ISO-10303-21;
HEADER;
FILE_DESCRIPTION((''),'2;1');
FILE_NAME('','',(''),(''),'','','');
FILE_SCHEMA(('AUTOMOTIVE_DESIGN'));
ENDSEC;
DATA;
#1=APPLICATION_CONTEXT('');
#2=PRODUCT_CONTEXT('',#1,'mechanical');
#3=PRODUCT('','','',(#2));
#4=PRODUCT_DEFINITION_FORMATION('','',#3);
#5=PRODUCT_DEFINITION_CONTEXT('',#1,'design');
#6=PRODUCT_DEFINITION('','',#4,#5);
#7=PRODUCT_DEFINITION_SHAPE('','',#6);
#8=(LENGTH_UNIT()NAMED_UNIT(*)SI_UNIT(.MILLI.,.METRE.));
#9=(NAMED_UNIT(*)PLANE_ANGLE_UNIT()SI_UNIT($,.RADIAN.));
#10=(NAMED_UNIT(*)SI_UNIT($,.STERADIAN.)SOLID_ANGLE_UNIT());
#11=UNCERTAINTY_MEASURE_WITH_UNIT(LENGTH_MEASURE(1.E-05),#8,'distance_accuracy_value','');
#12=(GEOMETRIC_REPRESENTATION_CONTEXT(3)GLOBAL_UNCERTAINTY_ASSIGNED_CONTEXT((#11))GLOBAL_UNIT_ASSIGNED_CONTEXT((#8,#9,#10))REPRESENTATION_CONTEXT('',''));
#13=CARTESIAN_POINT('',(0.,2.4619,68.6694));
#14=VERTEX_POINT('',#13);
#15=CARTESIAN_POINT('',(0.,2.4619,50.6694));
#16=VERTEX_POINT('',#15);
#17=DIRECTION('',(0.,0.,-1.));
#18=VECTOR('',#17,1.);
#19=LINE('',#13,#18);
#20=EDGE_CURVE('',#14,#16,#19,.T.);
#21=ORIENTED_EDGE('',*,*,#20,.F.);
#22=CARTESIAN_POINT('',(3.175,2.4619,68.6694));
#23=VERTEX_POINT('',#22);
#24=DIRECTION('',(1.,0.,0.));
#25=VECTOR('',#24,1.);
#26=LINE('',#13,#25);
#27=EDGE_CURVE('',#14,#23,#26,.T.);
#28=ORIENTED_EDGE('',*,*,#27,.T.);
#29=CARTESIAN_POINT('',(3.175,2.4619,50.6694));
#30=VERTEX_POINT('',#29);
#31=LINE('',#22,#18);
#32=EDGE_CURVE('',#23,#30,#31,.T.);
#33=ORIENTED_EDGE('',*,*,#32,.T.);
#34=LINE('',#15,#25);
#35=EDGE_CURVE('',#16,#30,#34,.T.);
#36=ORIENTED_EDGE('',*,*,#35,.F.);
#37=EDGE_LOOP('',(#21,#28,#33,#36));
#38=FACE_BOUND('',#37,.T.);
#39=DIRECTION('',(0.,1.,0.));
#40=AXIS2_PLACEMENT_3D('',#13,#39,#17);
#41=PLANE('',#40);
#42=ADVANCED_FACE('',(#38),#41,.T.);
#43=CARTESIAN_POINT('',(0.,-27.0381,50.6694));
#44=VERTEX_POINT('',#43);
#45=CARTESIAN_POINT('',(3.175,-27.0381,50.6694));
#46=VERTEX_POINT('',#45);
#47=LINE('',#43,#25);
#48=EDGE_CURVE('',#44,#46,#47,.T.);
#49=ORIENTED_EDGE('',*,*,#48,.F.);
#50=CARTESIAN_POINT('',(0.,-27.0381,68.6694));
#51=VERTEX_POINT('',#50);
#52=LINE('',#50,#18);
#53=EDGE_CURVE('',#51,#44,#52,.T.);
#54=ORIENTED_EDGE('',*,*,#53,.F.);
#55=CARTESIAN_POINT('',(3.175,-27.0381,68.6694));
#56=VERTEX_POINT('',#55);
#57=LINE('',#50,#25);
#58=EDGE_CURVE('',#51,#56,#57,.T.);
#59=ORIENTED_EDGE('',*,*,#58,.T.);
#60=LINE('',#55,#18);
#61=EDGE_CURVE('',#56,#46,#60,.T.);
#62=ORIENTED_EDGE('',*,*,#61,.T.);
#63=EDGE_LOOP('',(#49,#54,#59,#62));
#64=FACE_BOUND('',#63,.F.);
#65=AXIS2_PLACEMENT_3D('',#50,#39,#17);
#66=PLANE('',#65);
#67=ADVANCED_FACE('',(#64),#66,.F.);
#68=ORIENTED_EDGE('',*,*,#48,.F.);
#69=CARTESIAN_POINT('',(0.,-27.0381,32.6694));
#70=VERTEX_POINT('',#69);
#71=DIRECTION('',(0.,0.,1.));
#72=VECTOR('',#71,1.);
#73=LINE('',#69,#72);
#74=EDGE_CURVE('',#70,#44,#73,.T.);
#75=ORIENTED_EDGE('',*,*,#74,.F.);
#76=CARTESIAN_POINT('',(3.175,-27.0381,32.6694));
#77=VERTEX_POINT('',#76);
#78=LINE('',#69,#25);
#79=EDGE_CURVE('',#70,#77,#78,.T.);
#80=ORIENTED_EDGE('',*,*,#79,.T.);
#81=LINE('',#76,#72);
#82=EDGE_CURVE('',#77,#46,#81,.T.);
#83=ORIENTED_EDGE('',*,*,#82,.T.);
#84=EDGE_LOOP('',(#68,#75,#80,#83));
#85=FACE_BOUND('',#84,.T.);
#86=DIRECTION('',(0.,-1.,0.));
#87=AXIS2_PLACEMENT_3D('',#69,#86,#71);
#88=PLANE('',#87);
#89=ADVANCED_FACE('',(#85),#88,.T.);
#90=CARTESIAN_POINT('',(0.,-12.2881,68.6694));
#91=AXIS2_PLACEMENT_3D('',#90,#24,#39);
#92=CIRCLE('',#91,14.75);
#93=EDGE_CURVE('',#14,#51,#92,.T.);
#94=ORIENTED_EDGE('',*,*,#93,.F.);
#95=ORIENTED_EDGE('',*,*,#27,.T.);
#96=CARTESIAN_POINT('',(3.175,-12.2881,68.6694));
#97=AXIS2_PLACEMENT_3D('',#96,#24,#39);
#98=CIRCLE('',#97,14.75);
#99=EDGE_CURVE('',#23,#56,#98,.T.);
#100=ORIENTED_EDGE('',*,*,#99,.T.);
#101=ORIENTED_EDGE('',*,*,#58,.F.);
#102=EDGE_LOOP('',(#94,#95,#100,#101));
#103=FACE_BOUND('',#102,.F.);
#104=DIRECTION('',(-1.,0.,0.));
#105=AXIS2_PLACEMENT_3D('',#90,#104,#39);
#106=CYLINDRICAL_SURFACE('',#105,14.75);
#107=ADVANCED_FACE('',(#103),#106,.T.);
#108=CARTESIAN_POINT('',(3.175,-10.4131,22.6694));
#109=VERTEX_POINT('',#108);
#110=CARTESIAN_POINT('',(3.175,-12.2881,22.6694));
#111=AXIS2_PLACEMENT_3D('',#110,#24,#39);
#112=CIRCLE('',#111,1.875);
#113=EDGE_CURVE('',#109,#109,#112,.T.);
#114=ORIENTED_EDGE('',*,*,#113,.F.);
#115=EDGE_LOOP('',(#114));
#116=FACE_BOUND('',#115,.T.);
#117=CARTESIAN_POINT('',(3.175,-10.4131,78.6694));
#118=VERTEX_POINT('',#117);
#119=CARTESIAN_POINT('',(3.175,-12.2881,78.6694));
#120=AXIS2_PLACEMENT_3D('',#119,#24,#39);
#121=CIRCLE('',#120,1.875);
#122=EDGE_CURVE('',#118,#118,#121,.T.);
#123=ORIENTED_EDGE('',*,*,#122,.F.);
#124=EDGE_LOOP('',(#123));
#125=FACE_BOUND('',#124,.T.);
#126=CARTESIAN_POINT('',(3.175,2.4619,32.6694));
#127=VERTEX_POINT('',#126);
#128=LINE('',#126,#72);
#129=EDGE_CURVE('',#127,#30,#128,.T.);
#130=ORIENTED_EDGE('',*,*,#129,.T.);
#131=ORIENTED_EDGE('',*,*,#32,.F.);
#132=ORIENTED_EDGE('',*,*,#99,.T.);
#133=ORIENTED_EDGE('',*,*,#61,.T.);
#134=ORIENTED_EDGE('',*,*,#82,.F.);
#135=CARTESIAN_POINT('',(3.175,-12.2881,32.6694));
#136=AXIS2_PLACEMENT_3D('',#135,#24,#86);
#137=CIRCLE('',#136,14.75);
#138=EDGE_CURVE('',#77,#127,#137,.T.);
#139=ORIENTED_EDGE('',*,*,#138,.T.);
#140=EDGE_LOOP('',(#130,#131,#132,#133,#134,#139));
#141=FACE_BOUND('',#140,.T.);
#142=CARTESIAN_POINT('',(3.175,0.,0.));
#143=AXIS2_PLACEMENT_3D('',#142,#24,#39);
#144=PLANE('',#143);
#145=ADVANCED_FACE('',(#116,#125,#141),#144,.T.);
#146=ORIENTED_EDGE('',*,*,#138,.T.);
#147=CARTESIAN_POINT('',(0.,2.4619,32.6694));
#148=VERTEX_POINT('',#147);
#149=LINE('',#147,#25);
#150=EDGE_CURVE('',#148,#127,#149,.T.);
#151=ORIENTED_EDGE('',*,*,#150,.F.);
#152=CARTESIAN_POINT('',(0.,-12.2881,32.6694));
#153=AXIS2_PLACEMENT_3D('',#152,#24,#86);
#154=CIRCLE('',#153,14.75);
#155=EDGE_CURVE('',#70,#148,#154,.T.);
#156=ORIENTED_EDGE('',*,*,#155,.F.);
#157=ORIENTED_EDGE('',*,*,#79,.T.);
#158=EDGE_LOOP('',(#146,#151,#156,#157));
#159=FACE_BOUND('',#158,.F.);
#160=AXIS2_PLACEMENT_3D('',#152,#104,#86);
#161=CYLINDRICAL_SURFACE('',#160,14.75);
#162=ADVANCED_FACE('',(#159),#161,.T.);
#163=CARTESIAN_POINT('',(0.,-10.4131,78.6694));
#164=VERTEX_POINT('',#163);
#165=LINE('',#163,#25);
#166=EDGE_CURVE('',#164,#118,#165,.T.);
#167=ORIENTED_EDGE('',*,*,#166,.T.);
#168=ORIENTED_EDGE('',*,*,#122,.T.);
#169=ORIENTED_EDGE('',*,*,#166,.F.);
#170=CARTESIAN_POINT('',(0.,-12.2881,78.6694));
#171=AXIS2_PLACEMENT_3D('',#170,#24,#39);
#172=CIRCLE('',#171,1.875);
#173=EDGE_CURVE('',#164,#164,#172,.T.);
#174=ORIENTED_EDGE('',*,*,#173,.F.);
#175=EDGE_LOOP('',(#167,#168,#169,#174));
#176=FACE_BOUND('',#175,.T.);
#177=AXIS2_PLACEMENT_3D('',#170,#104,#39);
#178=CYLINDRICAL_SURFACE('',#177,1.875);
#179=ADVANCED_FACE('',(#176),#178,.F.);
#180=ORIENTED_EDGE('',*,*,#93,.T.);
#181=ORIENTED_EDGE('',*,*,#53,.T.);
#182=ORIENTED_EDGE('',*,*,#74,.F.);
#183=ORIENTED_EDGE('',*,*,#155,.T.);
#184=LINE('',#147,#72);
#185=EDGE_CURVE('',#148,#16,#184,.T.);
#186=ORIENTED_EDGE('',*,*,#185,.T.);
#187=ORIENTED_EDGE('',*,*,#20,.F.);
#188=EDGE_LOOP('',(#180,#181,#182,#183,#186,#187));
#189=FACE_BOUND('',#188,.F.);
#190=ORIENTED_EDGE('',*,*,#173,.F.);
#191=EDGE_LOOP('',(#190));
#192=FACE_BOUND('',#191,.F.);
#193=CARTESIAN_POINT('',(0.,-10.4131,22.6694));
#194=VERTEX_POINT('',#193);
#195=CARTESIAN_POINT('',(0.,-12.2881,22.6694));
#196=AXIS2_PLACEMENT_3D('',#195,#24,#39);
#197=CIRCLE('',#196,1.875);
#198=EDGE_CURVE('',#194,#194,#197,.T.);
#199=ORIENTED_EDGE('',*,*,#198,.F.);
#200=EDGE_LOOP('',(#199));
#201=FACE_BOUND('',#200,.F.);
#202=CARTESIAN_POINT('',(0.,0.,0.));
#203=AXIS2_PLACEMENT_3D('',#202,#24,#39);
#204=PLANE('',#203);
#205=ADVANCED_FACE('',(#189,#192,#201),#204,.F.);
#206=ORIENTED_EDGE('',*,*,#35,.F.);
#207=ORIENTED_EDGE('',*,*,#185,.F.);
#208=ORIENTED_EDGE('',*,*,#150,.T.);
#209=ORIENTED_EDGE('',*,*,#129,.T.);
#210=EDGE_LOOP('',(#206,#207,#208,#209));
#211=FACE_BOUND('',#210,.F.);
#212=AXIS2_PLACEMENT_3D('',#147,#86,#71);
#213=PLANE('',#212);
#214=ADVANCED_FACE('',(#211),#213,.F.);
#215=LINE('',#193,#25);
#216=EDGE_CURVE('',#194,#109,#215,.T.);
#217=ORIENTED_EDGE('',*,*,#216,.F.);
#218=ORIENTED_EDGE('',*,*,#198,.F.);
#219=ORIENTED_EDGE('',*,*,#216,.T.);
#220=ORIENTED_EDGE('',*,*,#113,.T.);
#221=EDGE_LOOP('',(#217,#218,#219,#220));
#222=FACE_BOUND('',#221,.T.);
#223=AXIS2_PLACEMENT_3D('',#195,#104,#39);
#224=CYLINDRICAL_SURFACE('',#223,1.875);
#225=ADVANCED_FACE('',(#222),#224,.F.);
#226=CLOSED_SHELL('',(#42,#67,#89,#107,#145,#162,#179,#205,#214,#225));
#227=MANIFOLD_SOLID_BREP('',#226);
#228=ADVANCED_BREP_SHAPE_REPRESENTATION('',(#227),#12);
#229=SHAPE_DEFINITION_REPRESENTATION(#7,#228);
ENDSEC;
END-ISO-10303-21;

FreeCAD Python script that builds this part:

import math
import FreeCAD as App
import Part
import Sketcher

V = App.Vector
Q = App.Units.Quantity

doc = App.newDocument("Part")
body = doc.addObject("PartDesign::Body", "Body")

# Sketch on YZ plane
sketch1 = body.newObject("Sketcher::SketchObject", "Sketch")
sketch1.AttachmentSupport = (doc.getObject("YZ_Plane"), [""])
sketch1.MapMode = "FlatFace"
sketch1.addGeometry(Part.LineSegment(V(-27.0381, 68.6694, 0), V(-27.0381, 32.6694, 0)), False)
sketch1.addGeometry(Part.ArcOfCircle(Part.Circle(V(-12.2881, 32.6694, 0), V(0, 0, 1), 14.75), math.radians(180), math.radians(360)), False)
sketch1.addGeometry(Part.LineSegment(V(2.4619, 32.6694, 0), V(2.4619, 68.6694, 0)), False)
sketch1.addGeometry(Part.ArcOfCircle(Part.Circle(V(-12.2881, 68.6694, 0), V(0, 0, 1), 14.75), math.radians(0), math.radians(180)), False)
sketch1.addGeometry(Part.Circle(V(-12.2881, 22.6694, 0), V(0, 0, 1), 1.875), False)
sketch1.addGeometry(Part.Circle(V(-12.2881, 78.6694, 0), V(0, 0, 1), 1.875), False)
sketch1.addConstraint(Sketcher.Constraint("Tangent", 0, 2, 1, 1))
sketch1.addConstraint(Sketcher.Constraint("Tangent", 1, 2, 2, 1))
sketch1.addConstraint(Sketcher.Constraint("Tangent", 2, 2, 3, 1))
sketch1.addConstraint(Sketcher.Constraint("Tangent", 3, 2, 0, 1))
sketch1.addConstraint(Sketcher.Constraint("Vertical", 0))
sketch1.addConstraint(Sketcher.Constraint("Vertical", 2))
sketch1.addConstraint(Sketcher.Constraint("Equal", 4, 5))
sketch1.addConstraint(Sketcher.Constraint("Vertical", 3, 3, 4, 3))
sketch1.addConstraint(Sketcher.Constraint("Vertical", 4, 3, 5, 3))
sketch1.addConstraint(Sketcher.Constraint("Diameter", 4, Q("3.75 mm")))
sketch1.addConstraint(Sketcher.Constraint("Radius", 1, Q("14.75 mm")))
sketch1.addConstraint(Sketcher.Constraint("DistanceY", 4, 3, 5, 3, Q("56 mm")))
sketch1.addConstraint(Sketcher.Constraint("DistanceY", 0, 2, 0, 1, Q("36 mm")))
sketch1.addConstraint(Sketcher.Constraint("DistanceY", 4, 3, 1, 3, Q("10 mm")))
sketch1.addConstraint(Sketcher.Constraint("DistanceX", 1, 3, -1, 1, Q("12.288 mm")))
sketch1.addConstraint(Sketcher.Constraint("DistanceY", -1, 1, 1, 3, Q("32.6694 mm")))
pad1 = body.newObject("PartDesign::Pad", "Pad")
pad1.Profile = sketch1
pad1.Length = 3.175

doc.recompute()
